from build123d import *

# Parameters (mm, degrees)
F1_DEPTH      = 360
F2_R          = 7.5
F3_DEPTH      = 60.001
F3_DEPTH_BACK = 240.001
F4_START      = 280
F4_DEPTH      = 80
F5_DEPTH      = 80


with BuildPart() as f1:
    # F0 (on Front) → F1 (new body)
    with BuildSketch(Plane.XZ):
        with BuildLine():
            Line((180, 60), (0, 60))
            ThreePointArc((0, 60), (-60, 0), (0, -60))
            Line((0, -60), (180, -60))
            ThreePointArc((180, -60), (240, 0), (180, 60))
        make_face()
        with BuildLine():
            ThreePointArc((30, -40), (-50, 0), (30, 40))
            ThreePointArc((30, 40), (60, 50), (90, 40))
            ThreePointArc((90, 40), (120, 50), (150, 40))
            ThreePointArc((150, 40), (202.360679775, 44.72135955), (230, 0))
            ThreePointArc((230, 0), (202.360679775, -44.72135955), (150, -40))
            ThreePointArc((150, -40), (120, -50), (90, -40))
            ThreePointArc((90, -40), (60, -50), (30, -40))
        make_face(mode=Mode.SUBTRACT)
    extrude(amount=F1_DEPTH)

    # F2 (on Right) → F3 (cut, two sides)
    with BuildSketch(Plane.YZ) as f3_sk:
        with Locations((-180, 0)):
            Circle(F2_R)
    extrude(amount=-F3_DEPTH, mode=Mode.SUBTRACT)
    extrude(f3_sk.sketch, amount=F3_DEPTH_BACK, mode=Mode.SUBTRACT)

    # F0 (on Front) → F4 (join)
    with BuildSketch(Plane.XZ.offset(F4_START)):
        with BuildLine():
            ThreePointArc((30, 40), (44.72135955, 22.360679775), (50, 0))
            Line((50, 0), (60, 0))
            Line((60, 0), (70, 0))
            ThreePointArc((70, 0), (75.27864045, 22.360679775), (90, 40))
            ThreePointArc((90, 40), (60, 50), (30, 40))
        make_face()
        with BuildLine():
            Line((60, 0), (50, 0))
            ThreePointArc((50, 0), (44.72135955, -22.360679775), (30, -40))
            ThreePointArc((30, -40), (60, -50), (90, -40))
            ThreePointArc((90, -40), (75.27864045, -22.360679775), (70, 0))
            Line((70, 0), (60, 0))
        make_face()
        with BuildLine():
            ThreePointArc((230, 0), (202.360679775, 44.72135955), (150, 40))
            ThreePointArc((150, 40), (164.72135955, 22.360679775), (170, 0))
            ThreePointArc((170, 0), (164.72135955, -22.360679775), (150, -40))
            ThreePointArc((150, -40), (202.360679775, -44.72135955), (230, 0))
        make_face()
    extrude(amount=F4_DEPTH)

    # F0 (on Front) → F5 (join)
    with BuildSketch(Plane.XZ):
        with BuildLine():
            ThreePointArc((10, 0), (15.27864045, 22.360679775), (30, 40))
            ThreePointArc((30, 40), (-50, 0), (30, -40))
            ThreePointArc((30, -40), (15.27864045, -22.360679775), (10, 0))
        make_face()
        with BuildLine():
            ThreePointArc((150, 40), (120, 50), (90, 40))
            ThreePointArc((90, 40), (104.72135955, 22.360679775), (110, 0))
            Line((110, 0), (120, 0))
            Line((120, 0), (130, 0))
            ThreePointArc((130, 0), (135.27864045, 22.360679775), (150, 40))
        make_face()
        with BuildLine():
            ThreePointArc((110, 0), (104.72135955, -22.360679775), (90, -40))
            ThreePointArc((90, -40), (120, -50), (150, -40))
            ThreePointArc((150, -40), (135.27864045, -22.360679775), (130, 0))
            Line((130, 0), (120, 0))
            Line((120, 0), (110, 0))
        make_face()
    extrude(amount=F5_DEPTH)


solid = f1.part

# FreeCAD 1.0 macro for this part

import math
import FreeCAD as App
import Part
import Sketcher
Q = App.Units.Quantity

doc = App.newDocument("Part")
body = doc.addObject("PartDesign::Body", "Body")

# Sketch on XZ plane
sketch1 = body.newObject("Sketcher::SketchObject", "Sketch")
sketch1.AttachmentSupport = (doc.getObject("XZ_Plane"), [""])
sketch1.MapMode = "FlatFace"
sketch1.addGeometry([
    Part.LineSegment(App.Vector(180, 60, 0), App.Vector(0, 60, 0)),  # 0
    Part.ArcOfCircle(Part.Circle(App.Vector(0, 0, 0), App.Vector(0, 0, 1), 60), math.radians(90), math.radians(270)),  # 1
    Part.LineSegment(App.Vector(0, -60, 0), App.Vector(180, -60, 0)),  # 2
    Part.ArcOfCircle(Part.Circle(App.Vector(180, 0, 0), App.Vector(0, 0, 1), 60), math.radians(-90), math.radians(90)),  # 3
    Part.ArcOfCircle(Part.Circle(App.Vector(60, 0, 0), App.Vector(0, 0, 1), 50), math.radians(-127), math.radians(-53)),  # 4
    Part.ArcOfCircle(Part.Circle(App.Vector(0, 0, 0), App.Vector(0, 0, 1), 50), math.radians(53), math.radians(307)),  # 5
    Part.ArcOfCircle(Part.Circle(App.Vector(60, 0, 0), App.Vector(0, 0, 1), 50), math.radians(53), math.radians(127)),  # 6
    Part.ArcOfCircle(Part.Circle(App.Vector(120, 0, 0), App.Vector(0, 0, 1), 50), math.radians(53), math.radians(127)),  # 7
    Part.ArcOfCircle(Part.Circle(App.Vector(180, 0, 0), App.Vector(0, 0, 1), 50), math.radians(-127), math.radians(127)),  # 8
    Part.ArcOfCircle(Part.Circle(App.Vector(120, 0, 0), App.Vector(0, 0, 1), 50), math.radians(-127), math.radians(-53)),  # 9
], False)
sketch1.addConstraint([
    Sketcher.Constraint("Tangent", 0, 2, 1, 1),
    Sketcher.Constraint("Tangent", 1, 2, 2, 1),
    Sketcher.Constraint("Tangent", 2, 2, 3, 1),
    Sketcher.Constraint("Tangent", 3, 2, 0, 1),
    Sketcher.Constraint("Coincident", 4, 1, 5, 2),
    Sketcher.Constraint("Coincident", 5, 1, 6, 2),
    Sketcher.Constraint("Coincident", 6, 1, 7, 2),
    Sketcher.Constraint("Coincident", 7, 1, 8, 2),
    Sketcher.Constraint("Coincident", 8, 1, 9, 2),
    Sketcher.Constraint("Coincident", 9, 1, 4, 2),
    Sketcher.Constraint("Horizontal", 0),
    Sketcher.Constraint("Horizontal", 2),
    Sketcher.Constraint("Coincident", 1, 3, -1, 1),
    Sketcher.Constraint("Coincident", 5, 3, -1, 1),
    Sketcher.Constraint("Coincident", 6, 3, 4, 3),
    Sketcher.Constraint("Coincident", 8, 3, 3, 3),
    Sketcher.Constraint("Coincident", 9, 3, 7, 3),
    Sketcher.Constraint("Equal", 4, 5),
    Sketcher.Constraint("Equal", 5, 6),
    Sketcher.Constraint("Equal", 6, 7),
    Sketcher.Constraint("Equal", 7, 8),
    Sketcher.Constraint("Equal", 8, 9),
    Sketcher.Constraint("Symmetric", 6, 1, 9, 1, -1),
    Sketcher.Constraint("Horizontal", 5, 1, 6, 1),
    Sketcher.Constraint("Horizontal", 6, 1, 7, 1),
    Sketcher.Constraint("Radius", 1, Q("60 mm")),
    Sketcher.Constraint("Radius", 4, Q("50 mm")),
    Sketcher.Constraint("DistanceX", 0, 2, 0, 1, Q("180 mm")),
])
pad1 = body.newObject("PartDesign::Pad", "Pad")
pad1.Profile = sketch1
pad1.Length = 360

# Sketch on YZ plane
sketch2 = body.newObject("Sketcher::SketchObject", "Sketch001")
sketch2.AttachmentSupport = (doc.getObject("YZ_Plane"), [""])
sketch2.MapMode = "FlatFace"
sketch2.addGeometry(Part.Circle(App.Vector(-180, 0, 0), App.Vector(0, 0, 1), 8), False)
sketch2.addConstraint([
    Sketcher.Constraint("PointOnObject", 0, 3, -1),
    Sketcher.Constraint("Diameter", 0, Q("15 mm")),
    Sketcher.Constraint("DistanceX", 0, 3, -1, 1, Q("180 mm")),
])
pocket1 = body.newObject("PartDesign::Pocket", "Pocket")
pocket1.Profile = sketch2
pocket1.Type = "ThroughAll"
pocket1.Midplane = True

# Sketch on XZ plane
sketch3 = body.newObject("Sketcher::SketchObject", "Sketch002")
sketch3.AttachmentSupport = (doc.getObject("XZ_Plane"), [""])
sketch3.MapMode = "FlatFace"
sketch3.AttachmentOffset = App.Placement(App.Vector(0, 0, 280), App.Rotation())
sketch3.addGeometry([
    Part.ArcOfCircle(Part.Circle(App.Vector(0, 0, 0), App.Vector(0, 0, 1), 50), math.radians(-53), math.radians(53)),  # 0
    Part.ArcOfCircle(Part.Circle(App.Vector(60, 0, 0), App.Vector(0, 0, 1), 50), math.radians(-127), math.radians(-53)),  # 1
    Part.ArcOfCircle(Part.Circle(App.Vector(120, 0, 0), App.Vector(0, 0, 1), 50), math.radians(127), math.radians(233)),  # 2
    Part.ArcOfCircle(Part.Circle(App.Vector(60, 0, 0), App.Vector(0, 0, 1), 50), math.radians(53), math.radians(127)),  # 3
    Part.ArcOfCircle(Part.Circle(App.Vector(120, 0, 0), App.Vector(0, 0, 1), 50), math.radians(-53), math.radians(53)),  # 4
    Part.ArcOfCircle(Part.Circle(App.Vector(180, 0, 0), App.Vector(0, 0, 1), 50), math.radians(-127), math.radians(127)),  # 5
], False)
sketch3.addConstraint([
    Sketcher.Constraint("Coincident", 0, 1, 1, 1),
    Sketcher.Constraint("Coincident", 1, 2, 2, 2),
    Sketcher.Constraint("Coincident", 2, 1, 3, 1),
    Sketcher.Constraint("Coincident", 3, 2, 0, 2),
    Sketcher.Constraint("Coincident", 4, 1, 5, 1),
    Sketcher.Constraint("Coincident", 5, 2, 4, 2),
    Sketcher.Constraint("Coincident", 0, 3, -1, 1),
    Sketcher.Constraint("Coincident", 3, 3, 1, 3),
    Sketcher.Constraint("Coincident", 4, 3, 2, 3),
    Sketcher.Constraint("Equal", 0, 1),
    Sketcher.Constraint("Equal", 1, 2),
    Sketcher.Constraint("Equal", 2, 3),
    Sketcher.Constraint("Equal", 3, 4),
    Sketcher.Constraint("Equal", 4, 5),
    Sketcher.Constraint("Symmetric", 1, 2, 2, 1, -1),
    Sketcher.Constraint("PointOnObject", 5, 3, -1),
    Sketcher.Constraint("Horizontal", 0, 1, 1, 2),
    Sketcher.Constraint("Horizontal", 1, 2, 4, 1),
    Sketcher.Constraint("Radius", 0, Q("50 mm")),
    Sketcher.Constraint("DistanceX", -1, 1, 1, 3, Q("60 mm")),
])
pad2 = body.newObject("PartDesign::Pad", "Pad001")
pad2.Profile = sketch3
pad2.Length = 80

# Sketch on XZ plane
sketch4 = body.newObject("Sketcher::SketchObject", "Sketch003")
sketch4.AttachmentSupport = (doc.getObject("XZ_Plane"), [""])
sketch4.MapMode = "FlatFace"
sketch4.addGeometry([
    Part.ArcOfCircle(Part.Circle(App.Vector(0, 0, 0), App.Vector(0, 0, 1), 50), math.radians(53), math.radians(307)),  # 0
    Part.ArcOfCircle(Part.Circle(App.Vector(60, 0, 0), App.Vector(0, 0, 1), 50), math.radians(127), math.radians(233)),  # 1
    Part.ArcOfCircle(Part.Circle(App.Vector(120, 0, 0), App.Vector(0, 0, 1), 50), math.radians(53), math.radians(127)),  # 2
    Part.ArcOfCircle(Part.Circle(App.Vector(60, 0, 0), App.Vector(0, 0, 1), 50), math.radians(-53), math.radians(53)),  # 3
    Part.ArcOfCircle(Part.Circle(App.Vector(120, 0, 0), App.Vector(0, 0, 1), 50), math.radians(-127), math.radians(-53)),  # 4
    Part.ArcOfCircle(Part.Circle(App.Vector(180, 0, 0), App.Vector(0, 0, 1), 50), math.radians(127), math.radians(233)),  # 5
], False)
sketch4.addConstraint([
    Sketcher.Constraint("Coincident", 0, 1, 1, 1),
    Sketcher.Constraint("Coincident", 1, 2, 0, 2),
    Sketcher.Constraint("Coincident", 2, 2, 3, 2),
    Sketcher.Constraint("Coincident", 3, 1, 4, 1),
    Sketcher.Constraint("Coincident", 4, 2, 5, 2),
    Sketcher.Constraint("Coincident", 5, 1, 2, 1),
    Sketcher.Constraint("Coincident", 0, 3, -1, 1),
    Sketcher.Constraint("Coincident", 3, 3, 1, 3),
    Sketcher.Constraint("Coincident", 4, 3, 2, 3),
    Sketcher.Constraint("Equal", 0, 1),
    Sketcher.Constraint("Equal", 1, 2),
    Sketcher.Constraint("Equal", 2, 3),
    Sketcher.Constraint("Equal", 3, 4),
    Sketcher.Constraint("Equal", 4, 5),
    Sketcher.Constraint("Symmetric", 2, 2, 3, 1, -1),
    Sketcher.Constraint("PointOnObject", 5, 3, -1),
    Sketcher.Constraint("Horizontal", 0, 1, 2, 2),
    Sketcher.Constraint("Horizontal", 3, 1, 4, 2),
    Sketcher.Constraint("Radius", 0, Q("50 mm")),
    Sketcher.Constraint("DistanceX", -1, 1, 1, 3, Q("60 mm")),
])
pad3 = body.newObject("PartDesign::Pad", "Pad002")
pad3.Profile = sketch4
pad3.Length = 80

doc.recompute()
